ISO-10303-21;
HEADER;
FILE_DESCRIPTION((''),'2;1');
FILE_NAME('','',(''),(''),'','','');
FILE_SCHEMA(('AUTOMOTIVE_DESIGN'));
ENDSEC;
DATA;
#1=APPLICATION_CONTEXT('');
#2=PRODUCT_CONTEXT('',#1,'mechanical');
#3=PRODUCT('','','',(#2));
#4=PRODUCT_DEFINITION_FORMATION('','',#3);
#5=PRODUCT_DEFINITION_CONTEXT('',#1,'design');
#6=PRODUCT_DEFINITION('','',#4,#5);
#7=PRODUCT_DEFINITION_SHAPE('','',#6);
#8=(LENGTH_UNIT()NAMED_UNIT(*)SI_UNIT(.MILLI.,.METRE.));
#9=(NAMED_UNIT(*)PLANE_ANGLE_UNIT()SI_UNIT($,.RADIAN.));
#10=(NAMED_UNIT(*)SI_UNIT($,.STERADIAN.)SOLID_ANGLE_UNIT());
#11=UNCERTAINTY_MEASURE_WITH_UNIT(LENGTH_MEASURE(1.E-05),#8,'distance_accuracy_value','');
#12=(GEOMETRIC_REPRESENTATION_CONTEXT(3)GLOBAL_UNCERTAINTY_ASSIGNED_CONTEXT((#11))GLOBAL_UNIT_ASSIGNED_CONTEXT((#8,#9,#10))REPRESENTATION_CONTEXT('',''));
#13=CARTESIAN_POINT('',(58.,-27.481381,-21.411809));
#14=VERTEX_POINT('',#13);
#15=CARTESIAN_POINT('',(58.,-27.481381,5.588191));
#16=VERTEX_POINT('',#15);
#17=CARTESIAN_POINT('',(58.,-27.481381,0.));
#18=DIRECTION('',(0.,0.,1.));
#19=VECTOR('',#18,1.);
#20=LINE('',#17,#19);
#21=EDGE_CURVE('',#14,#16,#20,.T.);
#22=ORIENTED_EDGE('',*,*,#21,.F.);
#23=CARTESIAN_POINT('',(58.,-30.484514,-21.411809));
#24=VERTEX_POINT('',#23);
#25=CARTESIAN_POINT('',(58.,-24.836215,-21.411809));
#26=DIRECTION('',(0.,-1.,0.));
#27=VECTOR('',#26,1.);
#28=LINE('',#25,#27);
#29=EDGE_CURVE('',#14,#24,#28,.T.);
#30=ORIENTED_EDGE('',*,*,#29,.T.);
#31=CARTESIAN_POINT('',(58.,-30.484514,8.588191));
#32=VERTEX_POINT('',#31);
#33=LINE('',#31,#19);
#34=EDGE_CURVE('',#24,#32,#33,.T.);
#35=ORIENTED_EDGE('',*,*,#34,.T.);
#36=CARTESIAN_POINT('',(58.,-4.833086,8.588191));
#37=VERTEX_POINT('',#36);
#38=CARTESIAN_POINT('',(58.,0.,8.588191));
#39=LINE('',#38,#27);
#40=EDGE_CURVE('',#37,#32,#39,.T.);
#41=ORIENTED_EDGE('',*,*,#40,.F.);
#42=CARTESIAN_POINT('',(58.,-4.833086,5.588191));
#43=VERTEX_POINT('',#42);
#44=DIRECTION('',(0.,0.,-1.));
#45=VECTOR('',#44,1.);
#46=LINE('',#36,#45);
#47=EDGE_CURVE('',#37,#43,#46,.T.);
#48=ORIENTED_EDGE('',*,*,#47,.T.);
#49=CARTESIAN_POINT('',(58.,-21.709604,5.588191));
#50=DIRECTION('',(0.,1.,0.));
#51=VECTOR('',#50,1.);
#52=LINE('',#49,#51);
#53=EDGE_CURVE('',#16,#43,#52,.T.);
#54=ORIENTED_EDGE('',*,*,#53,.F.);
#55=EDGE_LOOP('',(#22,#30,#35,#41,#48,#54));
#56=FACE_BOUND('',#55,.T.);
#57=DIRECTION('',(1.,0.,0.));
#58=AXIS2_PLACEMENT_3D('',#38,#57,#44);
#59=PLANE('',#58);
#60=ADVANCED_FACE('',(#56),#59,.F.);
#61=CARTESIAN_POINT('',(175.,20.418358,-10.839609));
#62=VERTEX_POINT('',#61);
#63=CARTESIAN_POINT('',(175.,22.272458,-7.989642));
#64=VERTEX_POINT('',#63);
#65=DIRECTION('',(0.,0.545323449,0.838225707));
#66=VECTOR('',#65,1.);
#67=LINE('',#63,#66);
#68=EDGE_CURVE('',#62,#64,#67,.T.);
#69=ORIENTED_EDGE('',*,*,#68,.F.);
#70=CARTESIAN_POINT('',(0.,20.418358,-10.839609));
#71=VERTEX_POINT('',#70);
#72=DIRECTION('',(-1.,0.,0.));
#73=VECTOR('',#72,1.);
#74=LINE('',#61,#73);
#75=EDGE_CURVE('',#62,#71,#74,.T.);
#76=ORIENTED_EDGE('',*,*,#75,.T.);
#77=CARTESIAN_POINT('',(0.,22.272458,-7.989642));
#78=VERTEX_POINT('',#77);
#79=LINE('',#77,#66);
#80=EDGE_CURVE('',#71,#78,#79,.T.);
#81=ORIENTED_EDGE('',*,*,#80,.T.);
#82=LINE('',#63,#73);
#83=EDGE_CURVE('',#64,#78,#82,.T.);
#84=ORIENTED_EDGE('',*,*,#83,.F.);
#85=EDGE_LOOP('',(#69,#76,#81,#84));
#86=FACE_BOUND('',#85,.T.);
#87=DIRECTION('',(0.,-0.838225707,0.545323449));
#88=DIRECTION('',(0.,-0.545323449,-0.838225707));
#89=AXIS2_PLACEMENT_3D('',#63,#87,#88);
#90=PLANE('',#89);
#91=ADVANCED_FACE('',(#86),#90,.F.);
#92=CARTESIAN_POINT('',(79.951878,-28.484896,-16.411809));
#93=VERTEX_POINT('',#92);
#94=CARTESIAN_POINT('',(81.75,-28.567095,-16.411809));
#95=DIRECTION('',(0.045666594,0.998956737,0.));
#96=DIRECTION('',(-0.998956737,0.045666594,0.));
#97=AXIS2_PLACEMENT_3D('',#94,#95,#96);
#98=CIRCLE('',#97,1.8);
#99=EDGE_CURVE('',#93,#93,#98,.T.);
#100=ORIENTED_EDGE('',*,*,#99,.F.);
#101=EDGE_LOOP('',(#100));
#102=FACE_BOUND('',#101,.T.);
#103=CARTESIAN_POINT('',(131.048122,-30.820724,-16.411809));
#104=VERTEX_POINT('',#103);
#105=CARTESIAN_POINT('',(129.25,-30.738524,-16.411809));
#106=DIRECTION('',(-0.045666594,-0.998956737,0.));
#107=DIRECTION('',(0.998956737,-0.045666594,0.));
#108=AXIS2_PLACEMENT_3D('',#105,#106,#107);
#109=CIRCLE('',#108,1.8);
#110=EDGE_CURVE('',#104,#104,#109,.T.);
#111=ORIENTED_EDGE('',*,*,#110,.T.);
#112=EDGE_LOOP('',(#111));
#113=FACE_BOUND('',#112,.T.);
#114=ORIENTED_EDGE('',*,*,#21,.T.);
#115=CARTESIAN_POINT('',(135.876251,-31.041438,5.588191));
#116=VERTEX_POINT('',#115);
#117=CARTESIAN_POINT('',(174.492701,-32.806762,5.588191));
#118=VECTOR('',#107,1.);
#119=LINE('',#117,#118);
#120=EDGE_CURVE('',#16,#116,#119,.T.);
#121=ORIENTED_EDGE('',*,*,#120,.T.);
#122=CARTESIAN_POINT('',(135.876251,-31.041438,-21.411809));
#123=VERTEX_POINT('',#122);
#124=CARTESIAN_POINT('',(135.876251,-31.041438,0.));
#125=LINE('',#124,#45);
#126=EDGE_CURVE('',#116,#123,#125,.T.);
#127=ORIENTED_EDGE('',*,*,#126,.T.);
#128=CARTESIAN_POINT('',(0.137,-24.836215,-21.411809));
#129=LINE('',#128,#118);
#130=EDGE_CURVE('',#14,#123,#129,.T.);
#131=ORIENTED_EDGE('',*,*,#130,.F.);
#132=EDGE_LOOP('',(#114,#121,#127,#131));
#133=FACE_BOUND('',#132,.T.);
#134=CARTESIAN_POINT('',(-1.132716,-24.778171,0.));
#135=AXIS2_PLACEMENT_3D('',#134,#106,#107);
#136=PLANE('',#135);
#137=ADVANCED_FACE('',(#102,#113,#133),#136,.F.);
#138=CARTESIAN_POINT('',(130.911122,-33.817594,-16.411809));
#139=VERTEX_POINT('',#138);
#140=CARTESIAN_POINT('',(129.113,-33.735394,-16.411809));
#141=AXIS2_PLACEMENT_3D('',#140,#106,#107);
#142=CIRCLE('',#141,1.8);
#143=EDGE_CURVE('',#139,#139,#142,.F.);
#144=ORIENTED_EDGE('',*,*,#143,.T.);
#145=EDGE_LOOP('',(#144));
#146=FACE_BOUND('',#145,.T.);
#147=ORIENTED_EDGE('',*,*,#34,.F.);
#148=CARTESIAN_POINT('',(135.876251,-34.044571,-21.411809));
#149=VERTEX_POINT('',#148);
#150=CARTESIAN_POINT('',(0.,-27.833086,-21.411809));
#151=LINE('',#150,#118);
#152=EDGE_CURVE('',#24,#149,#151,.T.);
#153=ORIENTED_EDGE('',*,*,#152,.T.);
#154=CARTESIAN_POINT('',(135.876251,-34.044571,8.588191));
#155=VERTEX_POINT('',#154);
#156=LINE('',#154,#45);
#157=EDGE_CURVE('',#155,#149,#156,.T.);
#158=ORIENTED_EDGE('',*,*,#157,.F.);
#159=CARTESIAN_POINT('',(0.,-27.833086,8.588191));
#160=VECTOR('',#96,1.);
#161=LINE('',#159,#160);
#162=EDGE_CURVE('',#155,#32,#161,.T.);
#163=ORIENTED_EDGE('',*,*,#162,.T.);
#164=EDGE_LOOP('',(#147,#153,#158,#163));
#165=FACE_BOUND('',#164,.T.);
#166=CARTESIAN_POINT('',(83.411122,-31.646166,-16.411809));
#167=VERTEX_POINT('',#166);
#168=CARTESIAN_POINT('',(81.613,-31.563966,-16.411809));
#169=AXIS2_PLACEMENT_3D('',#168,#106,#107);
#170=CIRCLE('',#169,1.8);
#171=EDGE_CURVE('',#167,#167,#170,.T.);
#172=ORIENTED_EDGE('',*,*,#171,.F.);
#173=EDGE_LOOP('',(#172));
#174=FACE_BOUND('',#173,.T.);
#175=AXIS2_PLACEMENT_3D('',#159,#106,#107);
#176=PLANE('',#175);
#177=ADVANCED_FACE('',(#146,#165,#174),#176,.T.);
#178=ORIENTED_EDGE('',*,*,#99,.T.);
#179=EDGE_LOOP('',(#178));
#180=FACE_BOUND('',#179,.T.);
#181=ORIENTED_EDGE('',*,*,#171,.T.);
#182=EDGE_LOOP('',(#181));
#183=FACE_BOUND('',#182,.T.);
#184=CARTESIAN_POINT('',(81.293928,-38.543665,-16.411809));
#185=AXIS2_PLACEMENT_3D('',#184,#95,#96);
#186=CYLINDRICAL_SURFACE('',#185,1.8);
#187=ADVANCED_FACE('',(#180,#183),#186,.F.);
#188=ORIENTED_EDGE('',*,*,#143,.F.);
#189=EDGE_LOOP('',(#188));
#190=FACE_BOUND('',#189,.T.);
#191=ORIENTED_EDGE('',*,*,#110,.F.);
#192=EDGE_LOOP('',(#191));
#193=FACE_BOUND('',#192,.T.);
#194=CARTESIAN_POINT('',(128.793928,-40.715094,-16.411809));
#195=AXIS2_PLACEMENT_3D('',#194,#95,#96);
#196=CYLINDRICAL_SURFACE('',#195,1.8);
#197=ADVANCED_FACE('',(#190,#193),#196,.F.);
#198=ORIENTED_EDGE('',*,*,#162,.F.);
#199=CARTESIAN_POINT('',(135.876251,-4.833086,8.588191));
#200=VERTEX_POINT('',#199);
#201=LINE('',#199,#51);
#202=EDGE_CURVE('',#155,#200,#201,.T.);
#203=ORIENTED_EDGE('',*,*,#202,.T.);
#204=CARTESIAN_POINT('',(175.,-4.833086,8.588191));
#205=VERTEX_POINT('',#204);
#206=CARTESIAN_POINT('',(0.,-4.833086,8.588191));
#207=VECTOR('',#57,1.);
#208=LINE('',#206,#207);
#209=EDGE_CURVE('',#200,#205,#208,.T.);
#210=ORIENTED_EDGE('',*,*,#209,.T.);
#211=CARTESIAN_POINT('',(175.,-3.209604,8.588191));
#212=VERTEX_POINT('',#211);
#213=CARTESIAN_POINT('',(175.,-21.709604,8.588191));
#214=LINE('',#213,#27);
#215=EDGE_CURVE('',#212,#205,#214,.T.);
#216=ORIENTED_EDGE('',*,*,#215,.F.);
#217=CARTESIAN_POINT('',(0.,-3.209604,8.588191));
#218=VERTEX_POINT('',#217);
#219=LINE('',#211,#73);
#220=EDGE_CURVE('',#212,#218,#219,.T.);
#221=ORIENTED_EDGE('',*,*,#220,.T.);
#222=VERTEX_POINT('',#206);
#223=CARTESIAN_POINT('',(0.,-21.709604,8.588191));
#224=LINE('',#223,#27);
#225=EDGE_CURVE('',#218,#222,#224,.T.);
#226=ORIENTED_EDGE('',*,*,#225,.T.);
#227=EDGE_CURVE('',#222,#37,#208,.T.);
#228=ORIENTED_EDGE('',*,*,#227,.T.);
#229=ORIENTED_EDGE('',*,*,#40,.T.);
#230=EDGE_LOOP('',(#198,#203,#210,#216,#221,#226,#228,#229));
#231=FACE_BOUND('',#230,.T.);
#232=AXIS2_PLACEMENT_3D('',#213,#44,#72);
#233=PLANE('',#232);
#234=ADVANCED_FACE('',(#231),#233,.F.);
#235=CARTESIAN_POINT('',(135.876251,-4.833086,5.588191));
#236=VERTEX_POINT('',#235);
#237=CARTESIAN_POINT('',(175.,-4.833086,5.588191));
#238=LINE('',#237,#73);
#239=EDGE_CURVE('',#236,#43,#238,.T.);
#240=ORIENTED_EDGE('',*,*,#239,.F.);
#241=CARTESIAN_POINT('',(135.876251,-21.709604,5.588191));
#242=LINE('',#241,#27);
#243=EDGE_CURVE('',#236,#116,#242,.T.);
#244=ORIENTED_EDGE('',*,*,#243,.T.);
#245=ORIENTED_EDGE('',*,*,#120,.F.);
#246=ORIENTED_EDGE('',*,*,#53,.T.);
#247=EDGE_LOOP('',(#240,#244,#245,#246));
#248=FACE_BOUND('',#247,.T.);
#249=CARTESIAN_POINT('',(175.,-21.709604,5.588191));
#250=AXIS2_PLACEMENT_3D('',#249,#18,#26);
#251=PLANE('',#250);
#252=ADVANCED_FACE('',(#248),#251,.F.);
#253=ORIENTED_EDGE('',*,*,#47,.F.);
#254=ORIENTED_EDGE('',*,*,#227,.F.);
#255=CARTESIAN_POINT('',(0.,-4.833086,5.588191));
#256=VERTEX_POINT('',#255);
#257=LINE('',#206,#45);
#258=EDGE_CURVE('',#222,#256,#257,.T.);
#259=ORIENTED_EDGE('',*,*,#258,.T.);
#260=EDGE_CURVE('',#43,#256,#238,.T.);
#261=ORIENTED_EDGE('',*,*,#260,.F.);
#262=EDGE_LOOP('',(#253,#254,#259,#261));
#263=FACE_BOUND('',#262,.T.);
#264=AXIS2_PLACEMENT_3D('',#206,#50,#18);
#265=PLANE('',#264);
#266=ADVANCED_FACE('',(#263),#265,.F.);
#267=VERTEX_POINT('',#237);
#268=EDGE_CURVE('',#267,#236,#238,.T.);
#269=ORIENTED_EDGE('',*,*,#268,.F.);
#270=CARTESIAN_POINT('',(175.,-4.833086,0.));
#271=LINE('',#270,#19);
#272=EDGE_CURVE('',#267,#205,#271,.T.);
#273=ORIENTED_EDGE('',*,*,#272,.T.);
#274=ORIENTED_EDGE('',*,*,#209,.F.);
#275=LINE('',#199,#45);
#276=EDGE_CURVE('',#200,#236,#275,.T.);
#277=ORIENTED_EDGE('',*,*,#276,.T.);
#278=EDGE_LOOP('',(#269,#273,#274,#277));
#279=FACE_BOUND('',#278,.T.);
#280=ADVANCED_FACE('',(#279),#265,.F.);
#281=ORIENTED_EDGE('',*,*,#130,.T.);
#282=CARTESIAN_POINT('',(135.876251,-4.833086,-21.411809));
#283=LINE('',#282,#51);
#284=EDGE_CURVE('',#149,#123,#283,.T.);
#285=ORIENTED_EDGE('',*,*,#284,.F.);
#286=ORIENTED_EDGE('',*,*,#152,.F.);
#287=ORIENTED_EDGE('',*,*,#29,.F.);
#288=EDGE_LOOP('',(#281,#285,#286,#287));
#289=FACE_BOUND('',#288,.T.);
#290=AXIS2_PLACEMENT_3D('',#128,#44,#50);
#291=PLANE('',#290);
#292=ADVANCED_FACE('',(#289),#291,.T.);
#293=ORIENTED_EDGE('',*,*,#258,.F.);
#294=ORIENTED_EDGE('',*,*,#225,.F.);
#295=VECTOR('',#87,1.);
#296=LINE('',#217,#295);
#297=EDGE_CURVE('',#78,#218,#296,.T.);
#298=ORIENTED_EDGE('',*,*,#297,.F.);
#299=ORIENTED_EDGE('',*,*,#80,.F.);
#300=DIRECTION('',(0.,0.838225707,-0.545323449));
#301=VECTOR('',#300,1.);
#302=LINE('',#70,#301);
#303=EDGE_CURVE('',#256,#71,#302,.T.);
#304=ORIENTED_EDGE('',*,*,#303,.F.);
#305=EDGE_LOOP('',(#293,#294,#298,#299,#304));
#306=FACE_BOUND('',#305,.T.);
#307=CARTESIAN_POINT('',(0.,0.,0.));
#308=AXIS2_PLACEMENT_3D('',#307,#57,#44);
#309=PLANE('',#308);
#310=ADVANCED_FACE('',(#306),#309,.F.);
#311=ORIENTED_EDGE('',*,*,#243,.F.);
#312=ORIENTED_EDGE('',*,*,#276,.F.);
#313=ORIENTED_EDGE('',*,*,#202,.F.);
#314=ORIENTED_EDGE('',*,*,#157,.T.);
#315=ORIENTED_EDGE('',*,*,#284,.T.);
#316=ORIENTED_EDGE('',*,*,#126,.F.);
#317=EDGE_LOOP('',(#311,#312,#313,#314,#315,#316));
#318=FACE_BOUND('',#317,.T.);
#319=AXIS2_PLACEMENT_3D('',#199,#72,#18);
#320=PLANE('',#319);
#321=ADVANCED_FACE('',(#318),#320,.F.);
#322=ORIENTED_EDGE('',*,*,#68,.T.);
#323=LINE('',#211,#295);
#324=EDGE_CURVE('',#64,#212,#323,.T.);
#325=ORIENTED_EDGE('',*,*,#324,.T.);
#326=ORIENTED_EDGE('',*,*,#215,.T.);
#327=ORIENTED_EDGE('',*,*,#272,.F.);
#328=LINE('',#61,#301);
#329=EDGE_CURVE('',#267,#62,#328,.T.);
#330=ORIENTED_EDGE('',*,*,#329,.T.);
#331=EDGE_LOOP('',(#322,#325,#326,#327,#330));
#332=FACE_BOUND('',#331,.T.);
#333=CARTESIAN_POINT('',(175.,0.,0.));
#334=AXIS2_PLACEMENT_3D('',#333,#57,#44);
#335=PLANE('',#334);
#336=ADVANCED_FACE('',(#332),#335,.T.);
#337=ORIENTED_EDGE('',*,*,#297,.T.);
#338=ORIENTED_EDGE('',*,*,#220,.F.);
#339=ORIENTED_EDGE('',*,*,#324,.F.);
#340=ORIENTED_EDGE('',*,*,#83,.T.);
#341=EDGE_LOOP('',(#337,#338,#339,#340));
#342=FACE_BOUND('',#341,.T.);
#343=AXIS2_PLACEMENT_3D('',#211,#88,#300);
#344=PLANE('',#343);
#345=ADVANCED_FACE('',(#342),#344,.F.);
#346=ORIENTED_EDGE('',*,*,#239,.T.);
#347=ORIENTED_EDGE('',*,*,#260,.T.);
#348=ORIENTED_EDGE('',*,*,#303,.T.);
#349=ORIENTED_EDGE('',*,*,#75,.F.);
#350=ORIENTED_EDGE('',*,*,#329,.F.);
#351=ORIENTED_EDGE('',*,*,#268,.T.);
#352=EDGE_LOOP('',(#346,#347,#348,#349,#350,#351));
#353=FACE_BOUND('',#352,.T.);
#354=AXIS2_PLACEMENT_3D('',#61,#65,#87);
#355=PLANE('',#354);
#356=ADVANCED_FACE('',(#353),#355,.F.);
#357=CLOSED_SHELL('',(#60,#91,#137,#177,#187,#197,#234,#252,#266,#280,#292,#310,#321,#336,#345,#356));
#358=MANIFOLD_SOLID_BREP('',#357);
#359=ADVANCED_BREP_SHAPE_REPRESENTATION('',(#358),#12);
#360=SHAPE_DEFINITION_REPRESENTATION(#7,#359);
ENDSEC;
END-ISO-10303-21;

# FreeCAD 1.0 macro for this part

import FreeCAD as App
import Part
import Sketcher
from FreeCAD import Vector
Q = App.Units.Quantity

doc = App.newDocument("Part")
body = doc.addObject("PartDesign::Body", "Body")

sketch1 = body.newObject("Sketcher::SketchObject", "Sketch")
sketch1.AttachmentSupport = (doc.getObject("YZ_Plane"), [""])
sketch1.MapMode = "FlatFace"
sketch1.addGeometry([
    Part.LineSegment(Vector(-3.2, 8.6, 0), Vector(-21.7, 8.6, 0)),
    Part.LineSegment(Vector(-21.7, 8.6, 0), Vector(-21.7, 5.6, 0)),
    Part.LineSegment(Vector(-21.7, 5.6, 0), Vector(-4.8, 5.6, 0)),
    Part.LineSegment(Vector(-4.8, 5.6, 0), Vector(20.4, -10.8, 0)),
    Part.LineSegment(Vector(20.4, -10.8, 0), Vector(22.3, -8, 0)),
    Part.LineSegment(Vector(22.3, -8, 0), Vector(-3.2, 8.6, 0)),
], False)
sketch1.addConstraint([
    Sketcher.Constraint("Coincident", 0, 2, 1, 1),
    Sketcher.Constraint("Coincident", 1, 2, 2, 1),
    Sketcher.Constraint("Coincident", 2, 2, 3, 1),
    Sketcher.Constraint("Coincident", 3, 2, 4, 1),
    Sketcher.Constraint("Coincident", 4, 2, 5, 1),
    Sketcher.Constraint("Coincident", 5, 2, 0, 1),
    Sketcher.Constraint("Horizontal", 0),
    Sketcher.Constraint("Vertical", 1),
    Sketcher.Constraint("Horizontal", 2),
    Sketcher.Constraint("Perpendicular", 3, 4),
    Sketcher.Constraint("Perpendicular", 4, 5),
    Sketcher.Constraint("DistanceY", 1, 2, 1, 1, Q("3 mm")),
    Sketcher.Constraint("DistanceX", 0, 2, 0, 1, Q("18.5 mm")),
    Sketcher.Constraint("Distance", 4, Q("3.4 mm")),
    Sketcher.Constraint("Distance", 5, Q("30.4 mm")),
    Sketcher.Constraint("DistanceY", 3, 2, 2, 2, Q("16.4278 mm")),
    Sketcher.Constraint("DistanceY", -1, 1, 0, 2, Q("8.588191 mm")),
    Sketcher.Constraint("DistanceX", -1, 1, 3, 2, Q("20.418358 mm")),
])
pad1 = body.newObject("PartDesign::Pad", "Pad")
pad1.Profile = sketch1
pad1.Length = 175

sketch2 = body.newObject("Sketcher::SketchObject", "Sketch001")
sketch2.AttachmentSupport = (doc.getObject("XY_Plane"), [""])
sketch2.MapMode = "FlatFace"
sketch2.AttachmentOffset = App.Placement(Vector(0, 0, 5.588191), App.Rotation())
sketch2.addGeometry([
    Part.LineSegment(Vector(175, -5, 0), Vector(175, -36, 0)),
    Part.LineSegment(Vector(175, -36, 0), Vector(0, -28, 0)),
    Part.LineSegment(Vector(0, -28, 0), Vector(0, -5, 0)),
    Part.LineSegment(Vector(0, -5, 0), Vector(175, -5, 0)),
], False)
sketch2.addConstraint([
    Sketcher.Constraint("Coincident", 0, 2, 1, 1),
    Sketcher.Constraint("Coincident", 1, 2, 2, 1),
    Sketcher.Constraint("Coincident", 2, 2, 3, 1),
    Sketcher.Constraint("Coincident", 3, 2, 0, 1),
    Sketcher.Constraint("Vertical", 0),
    Sketcher.Constraint("Vertical", 2),
    Sketcher.Constraint("Horizontal", 3),
    Sketcher.Constraint("PointOnObject", 1, 2, -2),
    Sketcher.Constraint("DistanceX", 3, 1, 3, 2, Q("175 mm")),
    Sketcher.Constraint("DistanceY", 0, 2, 0, 1, Q("31 mm")),
    Sketcher.Constraint("DistanceY", 2, 1, 2, 2, Q("23 mm")),
    Sketcher.Constraint("DistanceY", 0, 2, -1, 1, Q("35.833086 mm")),
])
pad2 = body.newObject("PartDesign::Pad", "Pad001")
pad2.Profile = sketch2
pad2.Length = 3

sketch3 = body.newObject("Sketcher::SketchObject", "Sketch002")
sketch3.Placement = App.Placement(Vector(-1.269716, -27.775041, 0), App.Rotation(Vector(0.998956737, -0.045666594, 0), Vector(0, 0, 1), Vector(-0.045666594, -0.998956737, 0), "ZXY"))
sketch3.addGeometry([
    Part.LineSegment(Vector(1, 9, 0), Vector(1, -21, 0)),
    Part.LineSegment(Vector(1, -21, 0), Vector(176, -21, 0)),
    Part.LineSegment(Vector(176, -21, 0), Vector(176, 9, 0)),
    Part.LineSegment(Vector(176, 9, 0), Vector(1, 9, 0)),
], False)
sketch3.addConstraint([
    Sketcher.Constraint("Coincident", 0, 2, 1, 1),
    Sketcher.Constraint("Coincident", 1, 2, 2, 1),
    Sketcher.Constraint("Coincident", 2, 2, 3, 1),
    Sketcher.Constraint("Coincident", 3, 2, 0, 1),
    Sketcher.Constraint("Vertical", 0),
    Sketcher.Constraint("Horizontal", 1),
    Sketcher.Constraint("Vertical", 2),
    Sketcher.Constraint("Horizontal", 3),
    Sketcher.Constraint("DistanceY", 0, 2, 0, 1, Q("30 mm")),
    Sketcher.Constraint("DistanceX", 1, 1, 1, 2, Q("175.182762 mm")),
    Sketcher.Constraint("DistanceY", 0, 2, -1, 1, Q("21.411809 mm")),
    Sketcher.Constraint("DistanceX", -1, 1, 0, 2, Q("1.271042 mm")),
])
pad3 = body.newObject("PartDesign::Pad", "Pad002")
pad3.Profile = sketch3
pad3.Length = 3
pad3.Reversed = True

sketch4 = body.newObject("Sketcher::SketchObject", "Sketch003")
sketch4.AttachmentSupport = (doc.getObject("XY_Plane"), [""])
sketch4.MapMode = "FlatFace"
sketch4.AttachmentOffset = App.Placement(Vector(0, 0, 5.588191), App.Rotation())
sketch4.addGeometry([
    Part.LineSegment(Vector(153, -5, 0), Vector(195, -5, 0)),
    Part.LineSegment(Vector(195, -5, 0), Vector(195, -40, 0)),
    Part.LineSegment(Vector(195, -40, 0), Vector(153, -40, 0)),
    Part.LineSegment(Vector(153, -40, 0), Vector(153, -5, 0)),
    Part.LineSegment(Vector(58, -41, 0), Vector(0, -41, 0)),
    Part.LineSegment(Vector(0, -41, 0), Vector(0, -5, 0)),
    Part.LineSegment(Vector(0, -5, 0), Vector(58, -5, 0)),
    Part.LineSegment(Vector(58, -5, 0), Vector(58, -41, 0)),
], False)
sketch4.addConstraint([
    Sketcher.Constraint("Coincident", 0, 2, 1, 1),
    Sketcher.Constraint("Coincident", 1, 2, 2, 1),
    Sketcher.Constraint("Coincident", 2, 2, 3, 1),
    Sketcher.Constraint("Coincident", 3, 2, 0, 1),
    Sketcher.Constraint("Coincident", 4, 2, 5, 1),
    Sketcher.Constraint("Coincident", 5, 2, 6, 1),
    Sketcher.Constraint("Coincident", 6, 2, 7, 1),
    Sketcher.Constraint("Coincident", 7, 2, 4, 1),
    Sketcher.Constraint("Horizontal", 0),
    Sketcher.Constraint("Vertical", 1),
    Sketcher.Constraint("Horizontal", 2),
    Sketcher.Constraint("Vertical", 3),
    Sketcher.Constraint("Horizontal", 4),
    Sketcher.Constraint("Vertical", 5),
    Sketcher.Constraint("Horizontal", 6),
    Sketcher.Constraint("Vertical", 7),
    Sketcher.Constraint("PointOnObject", 4, 2, -2),
    Sketcher.Constraint("Horizontal", 3, 2, 5, 2),
    Sketcher.Constraint("DistanceX", 4, 2, 4, 1, Q("58 mm")),
    Sketcher.Constraint("DistanceX", -1, 1, 2, 2, Q("153 mm")),
    Sketcher.Constraint("DistanceX", 0, 1, 0, 2, Q("42.37056 mm")),
    Sketcher.Constraint("DistanceY", 1, 2, 1, 1, Q("35.07268 mm")),
    Sketcher.Constraint("DistanceY", 5, 1, 5, 2, Q("36.640749 mm")),
    Sketcher.Constraint("DistanceY", 0, 2, -1, 1, Q("4.833086 mm")),
])
pocket1 = body.newObject("PartDesign::Pocket", "Pocket")
pocket1.Profile = sketch4
pocket1.Type = "ThroughAll"
pocket1.Midplane = True

sketch5 = body.newObject("Sketcher::SketchObject", "Sketch004")
sketch5.Placement = App.Placement(Vector(-1.132716, -24.778171, 0), App.Rotation(Vector(0.998956737, -0.045666594, 0), Vector(0, 0, -1), Vector(0.045666594, 0.998956737, 0), "ZXY"))
sketch5.addGeometry([
    Part.Circle(Vector(83, 16.4, 0), Vector(0, 0, 1), 1.8),
    Part.Circle(Vector(130.5, 16.4, 0), Vector(0, 0, 1), 1.8),
], False)
sketch5.addConstraint([
    Sketcher.Constraint("Equal", 0, 1),
    Sketcher.Constraint("Horizontal", 0, 3, 1, 3),
    Sketcher.Constraint("Diameter", 0, Q("3.6 mm")),
    Sketcher.Constraint("DistanceY", -1, 1, 0, 3, Q("16.411809 mm")),
    Sketcher.Constraint("DistanceX", -1, 1, 1, 3, Q("130.518882 mm")),
    Sketcher.Constraint("DistanceX", -1, 1, 0, 3, Q("82.969275 mm")),
])
pocket2 = body.newObject("PartDesign::Pocket", "Pocket001")
pocket2.Profile = sketch5
pocket2.Type = "ThroughAll"
pocket2.Midplane = True

sketch6 = body.newObject("Sketcher::SketchObject", "Sketch005")
sketch6.AttachmentSupport = (doc.getObject("XY_Plane"), [""])
sketch6.MapMode = "FlatFace"
sketch6.AttachmentOffset = App.Placement(Vector(0, 0, 5.588191), App.Rotation())
sketch6.addGeometry([
    Part.LineSegment(Vector(153, -5, 0), Vector(153, -42, 0)),
    Part.LineSegment(Vector(153, -42, 0), Vector(136, -42, 0)),
    Part.LineSegment(Vector(136, -42, 0), Vector(136, -5, 0)),
    Part.LineSegment(Vector(136, -5, 0), Vector(153, -5, 0)),
], False)
sketch6.addConstraint([
    Sketcher.Constraint("Coincident", 0, 2, 1, 1),
    Sketcher.Constraint("Coincident", 1, 2, 2, 1),
    Sketcher.Constraint("Coincident", 2, 2, 3, 1),
    Sketcher.Constraint("Coincident", 3, 2, 0, 1),
    Sketcher.Constraint("Vertical", 0),
    Sketcher.Constraint("Horizontal", 1),
    Sketcher.Constraint("Vertical", 2),
    Sketcher.Constraint("Horizontal", 3),
    Sketcher.Constraint("DistanceX", -1, 1, 0, 2, Q("153 mm")),
    Sketcher.Constraint("DistanceX", 1, 2, 1, 1, Q("17.123749 mm")),
    Sketcher.Constraint("DistanceY", 0, 2, 0, 1, Q("37.285885 mm")),
    Sketcher.Constraint("DistanceY", 0, 2, -1, 1, Q("42.11897 mm")),
])
pocket3 = body.newObject("PartDesign::Pocket", "Pocket002")
pocket3.Profile = sketch6
pocket3.Type = "ThroughAll"
pocket3.Midplane = True

doc.recompute()
